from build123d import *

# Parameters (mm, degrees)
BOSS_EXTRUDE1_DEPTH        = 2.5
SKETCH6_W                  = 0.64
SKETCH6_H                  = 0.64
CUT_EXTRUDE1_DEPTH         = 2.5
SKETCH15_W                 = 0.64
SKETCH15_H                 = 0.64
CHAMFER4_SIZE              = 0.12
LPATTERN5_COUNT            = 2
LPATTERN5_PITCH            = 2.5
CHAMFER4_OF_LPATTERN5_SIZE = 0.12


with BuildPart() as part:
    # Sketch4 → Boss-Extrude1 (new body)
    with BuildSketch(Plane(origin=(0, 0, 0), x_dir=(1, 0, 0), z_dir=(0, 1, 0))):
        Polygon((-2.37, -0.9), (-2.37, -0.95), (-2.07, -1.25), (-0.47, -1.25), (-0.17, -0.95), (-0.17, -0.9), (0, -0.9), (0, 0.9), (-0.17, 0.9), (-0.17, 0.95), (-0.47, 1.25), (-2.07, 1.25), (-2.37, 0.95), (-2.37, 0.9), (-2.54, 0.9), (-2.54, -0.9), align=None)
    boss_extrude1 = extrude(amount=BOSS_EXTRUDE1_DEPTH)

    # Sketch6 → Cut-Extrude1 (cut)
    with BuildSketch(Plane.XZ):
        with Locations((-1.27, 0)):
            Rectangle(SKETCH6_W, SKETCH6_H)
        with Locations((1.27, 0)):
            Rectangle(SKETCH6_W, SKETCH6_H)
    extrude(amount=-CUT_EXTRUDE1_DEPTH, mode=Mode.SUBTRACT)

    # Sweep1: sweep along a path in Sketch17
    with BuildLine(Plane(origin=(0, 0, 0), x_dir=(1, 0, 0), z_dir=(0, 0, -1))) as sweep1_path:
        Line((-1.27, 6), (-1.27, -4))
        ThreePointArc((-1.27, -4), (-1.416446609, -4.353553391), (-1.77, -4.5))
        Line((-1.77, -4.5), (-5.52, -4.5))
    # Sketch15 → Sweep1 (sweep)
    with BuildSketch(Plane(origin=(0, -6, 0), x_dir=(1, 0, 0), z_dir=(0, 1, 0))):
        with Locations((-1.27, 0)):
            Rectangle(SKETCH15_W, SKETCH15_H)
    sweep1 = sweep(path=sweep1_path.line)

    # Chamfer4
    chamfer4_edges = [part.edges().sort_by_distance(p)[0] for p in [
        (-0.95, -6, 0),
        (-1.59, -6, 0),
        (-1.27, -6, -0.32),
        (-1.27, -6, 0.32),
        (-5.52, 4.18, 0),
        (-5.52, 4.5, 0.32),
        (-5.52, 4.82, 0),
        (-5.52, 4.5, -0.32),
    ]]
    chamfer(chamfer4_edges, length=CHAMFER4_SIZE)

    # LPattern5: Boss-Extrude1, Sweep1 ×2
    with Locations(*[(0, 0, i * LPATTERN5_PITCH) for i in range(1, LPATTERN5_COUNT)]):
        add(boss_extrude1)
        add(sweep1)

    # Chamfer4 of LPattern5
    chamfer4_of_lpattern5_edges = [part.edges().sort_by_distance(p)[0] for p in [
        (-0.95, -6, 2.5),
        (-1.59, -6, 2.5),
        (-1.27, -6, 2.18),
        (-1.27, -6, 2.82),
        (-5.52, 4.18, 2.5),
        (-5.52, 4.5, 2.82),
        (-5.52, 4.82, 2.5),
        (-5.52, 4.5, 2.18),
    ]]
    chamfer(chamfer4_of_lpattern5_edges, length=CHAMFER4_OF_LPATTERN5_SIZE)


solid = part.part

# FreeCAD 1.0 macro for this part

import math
import FreeCAD as App
import Part
import Sketcher

V = App.Vector
Q = App.Units.Quantity


def edges_at(feature, points):
    """Names of the edges that pass closest to the given points."""
    edges = feature.Shape.Edges
    near = lambda p: min(range(len(edges)), key=lambda i: edges[i].distToShape(Part.Vertex(*p))[0])
    return sorted({f"Edge{near(p) + 1}" for p in points})


def add_polygon(sketch, points):
    """Adds a closed chain of lines whose ends are joined by coincident constraints."""
    first, n = sketch.GeometryCount, len(points)
    for a, b in zip(points, points[1:] + points[:1]):
        sketch.addGeometry(Part.LineSegment(App.Vector(*a, 0), App.Vector(*b, 0)), False)
    for i in range(n):
        sketch.addConstraint(Sketcher.Constraint("Coincident", first + i, 2, first + (i + 1) % n, 1))

doc = App.newDocument("Part")
params = doc.addObject("Spreadsheet::Sheet", "Params")
for row, (alias, value) in enumerate([
    ("sketch1_width", "1.6 mm"),
    ("sketch1_height", "1.8 mm"),
    ("sketch1_width2", "0.17 mm"),
    ("sketch1_height2", "0.05 mm"),
    ("pad1_length", "2.5 mm"),
    ("sketch2_width", "0.64 mm"),
    ("pocket1_length", "2.5 mm"),
    ("sketch3_width", "0.64 mm"),
    ("sketch4_radius", "0.5 mm"),
    ("sketch4_height", "10 mm"),
    ("sketch4_width", "3.75 mm"),
    ("chamfer_size", "0.12 mm"),
    ("linearpattern_pitch", "2.5 mm"),
    ("chamfer2_size", "0.12 mm"),
], start=1):
    params.set(f"A{row}", alias)
    params.set(f"B{row}", "=" + value)
    params.setAlias(f"B{row}", alias)

body = doc.addObject("PartDesign::Body", "Body")

# Sketch on XZ plane
sketch1 = body.newObject("Sketcher::SketchObject", "Sketch")
sketch1.AttachmentSupport = (doc.getObject("XZ_Plane"), [""])
sketch1.MapMode = "FlatFace"
add_polygon(sketch1, [(-2.37, 0.9), (-2.37, 0.95), (-2.07, 1.25), (-0.47, 1.25), (-0.17, 0.95), (-0.17, 0.9), (0, 0.9), (0, -0.9), (-0.17, -0.9), (-0.17, -0.95), (-0.47, -1.25), (-2.07, -1.25), (-2.37, -0.95), (-2.37, -0.9), (-2.54, -0.9), (-2.54, 0.9)])  # lines 0-15
sketch1.addConstraint(Sketcher.Constraint("Vertical", 0))
sketch1.addConstraint(Sketcher.Constraint("Horizontal", 2))
sketch1.addConstraint(Sketcher.Constraint("Vertical", 4))
sketch1.addConstraint(Sketcher.Constraint("Horizontal", 5))
sketch1.addConstraint(Sketcher.Constraint("Vertical", 6))
sketch1.addConstraint(Sketcher.Constraint("Horizontal", 7))
sketch1.addConstraint(Sketcher.Constraint("Vertical", 8))
sketch1.addConstraint(Sketcher.Constraint("Horizontal", 10))
sketch1.addConstraint(Sketcher.Constraint("Vertical", 12))
sketch1.addConstraint(Sketcher.Constraint("Horizontal", 13))
sketch1.addConstraint(Sketcher.Constraint("Vertical", 14))
sketch1.addConstraint(Sketcher.Constraint("Horizontal", 15))
sketch1.addConstraint(Sketcher.Constraint("Symmetric", 5, 2, 6, 2, -1, 1))
sketch1.addConstraint(Sketcher.Constraint("Symmetric", 3, 2, 8, 2, -1))
sketch1.addConstraint(Sketcher.Constraint("Symmetric", 2, 2, 9, 2, -1))
sketch1.addConstraint(Sketcher.Constraint("Symmetric", 0, 2, 11, 2, -1))
sketch1.addConstraint(Sketcher.Constraint("Perpendicular", 1, 3))
sketch1.addConstraint(Sketcher.Constraint("Perpendicular", 3, 9))
sketch1.addConstraint(Sketcher.Constraint("Perpendicular", 9, 11))
sketch1.addConstraint(Sketcher.Constraint("Horizontal", 0, 2, 3, 2))
sketch1.addConstraint(Sketcher.Constraint("Horizontal", 7, 2, 12, 2))
sketch1.addConstraint(Sketcher.Constraint("Horizontal", 5, 2, 14, 2))
sketch1.addConstraint(Sketcher.Constraint("Equal", 7, 13))
sketch1.addConstraint(Sketcher.Constraint("DistanceX", 2, 1, 2, 2, Q("1.6 mm")))
sketch1.addConstraint(Sketcher.Constraint("DistanceY", 6, 2, 6, 1, Q("1.8 mm")))
sketch1.addConstraint(Sketcher.Constraint("DistanceX", 5, 1, 5, 2, Q("0.17 mm")))
sketch1.addConstraint(Sketcher.Constraint("DistanceY", 0, 1, 0, 2, Q("0.05 mm")))
sketch1.addConstraint(Sketcher.Constraint("DistanceX", 0, 2, 1, 2, Q("0.3 mm")))
sketch1.setExpression("Constraints[39]", "Params.sketch1_width")
sketch1.setExpression("Constraints[40]", "Params.sketch1_height")
sketch1.setExpression("Constraints[41]", "Params.sketch1_width2")
sketch1.setExpression("Constraints[42]", "Params.sketch1_height2")
pad1 = body.newObject("PartDesign::Pad", "Pad")
pad1.Profile = sketch1
pad1.setExpression("Length", "Params.pad1_length")
pad1.Reversed = True

# Sketch on XZ plane
sketch2 = body.newObject("Sketcher::SketchObject", "Sketch001")
sketch2.AttachmentSupport = (doc.getObject("XZ_Plane"), [""])
sketch2.MapMode = "FlatFace"
add_polygon(sketch2, [(-1.6, 0.3), (-1.6, -0.3), (-0.9, -0.3), (-0.9, 0.3)])  # lines 0-3
add_polygon(sketch2, [(0.9, 0.3), (0.9, -0.3), (1.6, -0.3), (1.6, 0.3)])  # lines 4-7
sketch2.addConstraint(Sketcher.Constraint("Vertical", 0))
sketch2.addConstraint(Sketcher.Constraint("Horizontal", 1))
sketch2.addConstraint(Sketcher.Constraint("Vertical", 2))
sketch2.addConstraint(Sketcher.Constraint("Horizontal", 3))
sketch2.addConstraint(Sketcher.Constraint("Vertical", 4))
sketch2.addConstraint(Sketcher.Constraint("Horizontal", 5))
sketch2.addConstraint(Sketcher.Constraint("Vertical", 6))
sketch2.addConstraint(Sketcher.Constraint("Horizontal", 7))
sketch2.addConstraint(Sketcher.Constraint("Symmetric", 2, 2, 4, 2, -1, 1))
sketch2.addConstraint(Sketcher.Constraint("Symmetric", 0, 2, 6, 2, -1, 1))
sketch2.addConstraint(Sketcher.Constraint("Horizontal", 1, 2, 4, 2))
sketch2.addConstraint(Sketcher.Constraint("Equal", 7, 0))
sketch2.addConstraint(Sketcher.Constraint("DistanceX", 1, 1, 1, 2, Q("0.64 mm")))
sketch2.addConstraint(Sketcher.Constraint("DistanceX", 1, 2, 4, 2, Q("1.9 mm")))
sketch2.setExpression("Constraints[20]", "Params.sketch2_width")
pocket1 = body.newObject("PartDesign::Pocket", "Pocket")
pocket1.Profile = sketch2
pocket1.setExpression("Length", "Params.pocket1_length")

# Sketch on XZ plane
sketch3 = body.newObject("Sketcher::SketchObject", "Sketch002")
sketch3.AttachmentSupport = (doc.getObject("XZ_Plane"), [""])
sketch3.MapMode = "FlatFace"
sketch3.AttachmentOffset = App.Placement(V(0, 0, 6), App.Rotation())
add_polygon(sketch3, [(-1.6, -0.3), (-1.6, 0.3), (-0.9, 0.3), (-0.9, -0.3)])  # lines 0-3
sketch3.addConstraint(Sketcher.Constraint("Vertical", 0))
sketch3.addConstraint(Sketcher.Constraint("Horizontal", 1))
sketch3.addConstraint(Sketcher.Constraint("Vertical", 2))
sketch3.addConstraint(Sketcher.Constraint("Horizontal", 3))
sketch3.addConstraint(Sketcher.Constraint("Equal", 3, 0))
sketch3.addConstraint(Sketcher.Constraint("DistanceX", 1, 1, 1, 2, Q("0.64 mm")))
sketch3.addConstraint(Sketcher.Constraint("DistanceX", 0, 2, -1, 1, Q("1.59 mm")))
sketch3.addConstraint(Sketcher.Constraint("DistanceY", -1, 1, 0, 2, Q("0.32 mm")))
sketch3.setExpression("Constraints[9]", "Params.sketch3_width")

# Sketch on XY plane
sketch4 = body.newObject("Sketcher::SketchObject", "Sketch003")
sketch4.AttachmentSupport = (doc.getObject("XY_Plane"), [""])
sketch4.MapMode = "FlatFace"
sketch4.addGeometry(Part.LineSegment(V(-1.27, -6, 0), V(-1.27, 4, 0)), False)
sketch4.addGeometry(Part.ArcOfCircle(Part.Circle(V(-1.77, 4, 0), V(0, 0, 1), 0.5), math.radians(0), math.radians(90)), False)
sketch4.addGeometry(Part.LineSegment(V(-1.77, 4.5, 0), V(-5.52, 4.5, 0)), False)
sketch4.addConstraint(Sketcher.Constraint("Tangent", 0, 2, 1, 1))
sketch4.addConstraint(Sketcher.Constraint("Tangent", 1, 2, 2, 1))
sketch4.addConstraint(Sketcher.Constraint("Vertical", 0))
sketch4.addConstraint(Sketcher.Constraint("Horizontal", 2))
sketch4.addConstraint(Sketcher.Constraint("Radius", 1, Q("0.5 mm")))
sketch4.addConstraint(Sketcher.Constraint("DistanceY", 0, 1, 0, 2, Q("10 mm")))
sketch4.addConstraint(Sketcher.Constraint("DistanceY", -1, 1, 1, 3, Q("4 mm")))
sketch4.addConstraint(Sketcher.Constraint("DistanceX", 2, 2, 2, 1, Q("3.75 mm")))
sketch4.addConstraint(Sketcher.Constraint("DistanceX", 1, 3, -1, 1, Q("1.77 mm")))
sketch4.setExpression("Constraints[4]", "Params.sketch4_radius")
sketch4.setExpression("Constraints[5]", "Params.sketch4_height")
sketch4.setExpression("Constraints[7]", "Params.sketch4_width")
doc.recompute()

additivepipe = body.newObject("PartDesign::AdditivePipe", "AdditivePipe")
additivepipe.Profile = sketch3
additivepipe.Spine = (sketch4, ["Edge1", "Edge2", "Edge3"])
doc.recompute()

chamfer = body.newObject("PartDesign::Chamfer", "Chamfer")
chamfer.Base = (additivepipe, edges_at(additivepipe, [
    (-0.95, -6, 0),
    (-1.59, -6, 0),
    (-1.27, -6, -0.32),
    (-1.27, -6, 0.32),
    (-5.52, 4.18, 0),
    (-5.52, 4.5, 0.32),
    (-5.52, 4.82, 0),
    (-5.52, 4.5, -0.32),
]))
chamfer.setExpression("Size", "Params.chamfer_size")
doc.recompute()

linearpattern = body.newObject("PartDesign::LinearPattern", "LinearPattern")
linearpattern.Originals = [pad1, additivepipe]
linearpattern.Direction = (doc.getObject("Z_Axis"), [""])
linearpattern.Mode = "offset"
linearpattern.setExpression("Offset", "Params.linearpattern_pitch")
linearpattern.Occurrences = 2
body.Tip = linearpattern
doc.recompute()

chamfer2 = body.newObject("PartDesign::Chamfer", "Chamfer001")
chamfer2.Base = (linearpattern, edges_at(linearpattern, [
    (-0.95, -6, 2.5),
    (-1.59, -6, 2.5),
    (-1.27, -6, 2.18),
    (-1.27, -6, 2.82),
    (-5.52, 4.18, 2.5),
    (-5.52, 4.5, 2.82),
    (-5.52, 4.82, 2.5),
    (-5.52, 4.5, 2.18),
]))
chamfer2.setExpression("Size", "Params.chamfer2_size")

doc.recompute()
